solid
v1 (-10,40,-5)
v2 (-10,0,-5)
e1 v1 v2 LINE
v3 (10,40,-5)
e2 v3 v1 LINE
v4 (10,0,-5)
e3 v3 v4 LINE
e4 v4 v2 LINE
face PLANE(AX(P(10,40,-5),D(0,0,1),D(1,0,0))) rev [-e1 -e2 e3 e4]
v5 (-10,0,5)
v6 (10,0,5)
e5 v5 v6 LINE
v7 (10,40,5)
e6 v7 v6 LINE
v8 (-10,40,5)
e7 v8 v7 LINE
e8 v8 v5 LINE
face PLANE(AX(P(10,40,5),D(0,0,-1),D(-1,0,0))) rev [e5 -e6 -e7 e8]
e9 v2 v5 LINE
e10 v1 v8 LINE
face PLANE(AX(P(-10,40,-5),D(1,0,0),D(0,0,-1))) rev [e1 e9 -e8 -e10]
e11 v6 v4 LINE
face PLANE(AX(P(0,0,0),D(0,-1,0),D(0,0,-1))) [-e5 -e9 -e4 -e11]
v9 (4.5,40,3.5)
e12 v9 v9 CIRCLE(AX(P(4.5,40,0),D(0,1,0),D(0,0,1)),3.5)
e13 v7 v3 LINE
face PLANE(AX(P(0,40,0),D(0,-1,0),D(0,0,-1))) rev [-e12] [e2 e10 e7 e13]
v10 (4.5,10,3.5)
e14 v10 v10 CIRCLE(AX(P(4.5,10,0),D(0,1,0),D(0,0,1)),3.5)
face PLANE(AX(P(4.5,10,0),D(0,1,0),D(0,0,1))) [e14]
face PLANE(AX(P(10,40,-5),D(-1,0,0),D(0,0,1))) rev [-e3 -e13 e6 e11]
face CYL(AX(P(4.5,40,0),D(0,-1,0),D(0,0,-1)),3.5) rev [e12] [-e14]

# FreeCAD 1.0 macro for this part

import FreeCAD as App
import Part
import Sketcher

V = App.Vector

doc = App.newDocument("Part")
params = doc.addObject("Spreadsheet::Sheet", "Params")
for row, (alias, value) in enumerate([
    ("sketch1_diameter", "7 mm"),
    ("sketch1_width", "20 mm"),
    ("sketch1_height", "10 mm"),
    ("pad1_length", "40 mm"),
    ("sketch2_diameter", "7 mm"),
    ("pad2_length", "10 mm"),
], start=1):
    params.set(f"A{row}", alias)
    params.set(f"B{row}", "=" + value)
    params.setAlias(f"B{row}", alias)

body = doc.addObject("PartDesign::Body", "Body")

# Sketch on XZ plane
sketch1 = doc.addObject("Sketcher::SketchObject", "Sketch")
body.addObject(sketch1)
sketch1.AttachmentSupport = (doc.XZ_Plane, [""])
sketch1.MapMode = "FlatFace"
sketch1.addGeometry(Part.LineSegment(V(-10, -5, 0), V(-10, 5, 0)), False)
sketch1.addGeometry(Part.LineSegment(V(-10, 5, 0), V(10, 5, 0)), False)
sketch1.addGeometry(Part.LineSegment(V(10, 5, 0), V(10, -5, 0)), False)
sketch1.addGeometry(Part.LineSegment(V(10, -5, 0), V(-10, -5, 0)), False)
sketch1.addGeometry(Part.Circle(V(4.5, 0, 0), V(0, 0, 1), 3.5), False)
sketch1.addConstraint(Sketcher.Constraint("Coincident", 0, 2, 1, 1))
sketch1.addConstraint(Sketcher.Constraint("Coincident", 1, 2, 2, 1))
sketch1.addConstraint(Sketcher.Constraint("Coincident", 2, 2, 3, 1))
sketch1.addConstraint(Sketcher.Constraint("Coincident", 3, 2, 0, 1))
sketch1.addConstraint(Sketcher.Constraint("Vertical", 0))
sketch1.addConstraint(Sketcher.Constraint("Horizontal", 1))
sketch1.addConstraint(Sketcher.Constraint("Vertical", 2))
sketch1.addConstraint(Sketcher.Constraint("Horizontal", 3))
sketch1.addConstraint(Sketcher.Constraint("Symmetric", 0, 2, 2, 2, -1, 1))
sketch1.addConstraint(Sketcher.Constraint("PointOnObject", 4, 3, -1))
sketch1.addConstraint(Sketcher.Constraint("Diameter", 4, 7.0))
sketch1.addConstraint(Sketcher.Constraint("DistanceX", 1, 1, 1, 2, 20.0))
sketch1.addConstraint(Sketcher.Constraint("DistanceY", 0, 1, 0, 2, 10.0))
sketch1.addConstraint(Sketcher.Constraint("DistanceX", -1, 1, 4, 3, 4.5))
sketch1.setExpression("Constraints[10]", "Params.sketch1_diameter")
sketch1.setExpression("Constraints[11]", "Params.sketch1_width")
sketch1.setExpression("Constraints[12]", "Params.sketch1_height")
pad1 = doc.addObject("PartDesign::Pad", "Pad")
body.addObject(pad1)
pad1.Profile = sketch1
pad1.setExpression("Length", "Params.pad1_length")
pad1.Reversed = True

# Sketch on XZ plane
sketch2 = doc.addObject("Sketcher::SketchObject", "Sketch001")
body.addObject(sketch2)
sketch2.AttachmentSupport = (doc.XZ_Plane, [""])
sketch2.MapMode = "FlatFace"
sketch2.addGeometry(Part.Circle(V(4.5, 0, 0), V(0, 0, 1), 3.5), False)
sketch2.addConstraint(Sketcher.Constraint("PointOnObject", 0, 3, -1))
sketch2.addConstraint(Sketcher.Constraint("Diameter", 0, 7.0))
sketch2.addConstraint(Sketcher.Constraint("DistanceX", -1, 1, 0, 3, 4.5))
sketch2.setExpression("Constraints[1]", "Params.sketch2_diameter")
pad2 = doc.addObject("PartDesign::Pad", "Pad001")
body.addObject(pad2)
pad2.Profile = sketch2
pad2.setExpression("Length", "Params.pad2_length")
pad2.Reversed = True

doc.recompute()
